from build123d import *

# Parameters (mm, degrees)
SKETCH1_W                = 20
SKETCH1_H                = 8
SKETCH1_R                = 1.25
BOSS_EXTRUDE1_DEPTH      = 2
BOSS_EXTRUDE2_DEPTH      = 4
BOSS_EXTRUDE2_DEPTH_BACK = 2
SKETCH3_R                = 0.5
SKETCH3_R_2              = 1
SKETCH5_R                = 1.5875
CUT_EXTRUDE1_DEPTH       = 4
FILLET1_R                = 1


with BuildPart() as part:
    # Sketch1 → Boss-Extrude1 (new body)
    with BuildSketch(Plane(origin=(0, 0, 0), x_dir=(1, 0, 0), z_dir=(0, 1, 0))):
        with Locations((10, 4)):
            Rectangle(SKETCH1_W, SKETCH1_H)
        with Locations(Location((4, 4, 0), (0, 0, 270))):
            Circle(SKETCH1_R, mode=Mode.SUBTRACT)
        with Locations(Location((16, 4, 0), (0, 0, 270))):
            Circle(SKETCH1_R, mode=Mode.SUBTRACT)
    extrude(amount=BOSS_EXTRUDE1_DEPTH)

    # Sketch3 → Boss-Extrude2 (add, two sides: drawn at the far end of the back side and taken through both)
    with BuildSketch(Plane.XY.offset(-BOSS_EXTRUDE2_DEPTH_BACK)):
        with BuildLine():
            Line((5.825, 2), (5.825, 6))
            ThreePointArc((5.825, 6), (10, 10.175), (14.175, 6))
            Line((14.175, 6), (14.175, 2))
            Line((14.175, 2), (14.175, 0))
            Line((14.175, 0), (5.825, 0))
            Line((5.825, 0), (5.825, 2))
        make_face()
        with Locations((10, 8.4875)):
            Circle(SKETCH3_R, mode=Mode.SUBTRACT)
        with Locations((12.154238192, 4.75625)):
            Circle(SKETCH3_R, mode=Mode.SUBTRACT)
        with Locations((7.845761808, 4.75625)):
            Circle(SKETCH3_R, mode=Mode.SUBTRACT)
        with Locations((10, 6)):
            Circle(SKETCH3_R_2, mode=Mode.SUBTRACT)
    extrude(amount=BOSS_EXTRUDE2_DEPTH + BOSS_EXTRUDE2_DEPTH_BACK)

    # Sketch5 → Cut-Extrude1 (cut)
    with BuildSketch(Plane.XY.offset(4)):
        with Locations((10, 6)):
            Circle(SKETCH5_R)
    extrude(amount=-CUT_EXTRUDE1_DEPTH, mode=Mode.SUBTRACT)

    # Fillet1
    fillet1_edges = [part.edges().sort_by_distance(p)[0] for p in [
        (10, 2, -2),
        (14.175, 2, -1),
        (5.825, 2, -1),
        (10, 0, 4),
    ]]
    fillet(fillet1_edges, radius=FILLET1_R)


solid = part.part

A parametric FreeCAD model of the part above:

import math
import FreeCAD as App
import Part
import Sketcher
Q = App.Units.Quantity


def edges_at(feature, points):
    """Names of the edges that pass closest to the given points."""
    edges = feature.Shape.Edges
    near = lambda p: min(range(len(edges)), key=lambda i: edges[i].distToShape(Part.Vertex(*p))[0])
    return sorted({f"Edge{near(p) + 1}" for p in points})

doc = App.newDocument("Part")
body = doc.addObject("PartDesign::Body", "Body")

# Sketch on XZ plane
sketch1 = body.newObject("Sketcher::SketchObject", "Sketch")
sketch1.AttachmentSupport = (doc.getObject("XZ_Plane"), [""])
sketch1.MapMode = "FlatFace"
sketch1.addGeometry(Part.LineSegment(App.Vector(0, -8, 0), App.Vector(0, 0, 0)), False)
sketch1.addGeometry(Part.LineSegment(App.Vector(0, 0, 0), App.Vector(20, 0, 0)), False)
sketch1.addGeometry(Part.LineSegment(App.Vector(20, 0, 0), App.Vector(20, -8, 0)), False)
sketch1.addGeometry(Part.LineSegment(App.Vector(20, -8, 0), App.Vector(0, -8, 0)), False)
sketch1.addGeometry(Part.Circle(App.Vector(4, -4, 0), App.Vector(0, 0, 1), 1.25), False)
sketch1.addGeometry(Part.Circle(App.Vector(16, -4, 0), App.Vector(0, 0, 1), 1.25), False)
sketch1.addConstraint(Sketcher.Constraint("Coincident", 0, 2, 1, 1))
sketch1.addConstraint(Sketcher.Constraint("Coincident", 1, 2, 2, 1))
sketch1.addConstraint(Sketcher.Constraint("Coincident", 2, 2, 3, 1))
sketch1.addConstraint(Sketcher.Constraint("Coincident", 3, 2, 0, 1))
sketch1.addConstraint(Sketcher.Constraint("Vertical", 0))
sketch1.addConstraint(Sketcher.Constraint("Horizontal", 1))
sketch1.addConstraint(Sketcher.Constraint("Vertical", 2))
sketch1.addConstraint(Sketcher.Constraint("Horizontal", 3))
sketch1.addConstraint(Sketcher.Constraint("Coincident", 0, 2, -1, 1))
sketch1.addConstraint(Sketcher.Constraint("Equal", 4, 5))
sketch1.addConstraint(Sketcher.Constraint("Horizontal", 4, 3, 5, 3))
sketch1.addConstraint(Sketcher.Constraint("Diameter", 4, Q("2.5 mm")))
sketch1.addConstraint(Sketcher.Constraint("DistanceX", 1, 1, 1, 2, Q("20 mm")))
sketch1.addConstraint(Sketcher.Constraint("DistanceY", 0, 1, 0, 2, Q("8 mm")))
sketch1.addConstraint(Sketcher.Constraint("DistanceX", -1, 1, 4, 3, Q("4 mm")))
sketch1.addConstraint(Sketcher.Constraint("DistanceY", 4, 3, -1, 1, Q("4 mm")))
sketch1.addConstraint(Sketcher.Constraint("DistanceX", -1, 1, 5, 3, Q("16 mm")))
pad1 = body.newObject("PartDesign::Pad", "Pad")
pad1.Profile = sketch1
pad1.Length = 2
pad1.Reversed = True

# Sketch on XY plane
sketch2 = body.newObject("Sketcher::SketchObject", "Sketch001")
sketch2.AttachmentSupport = (doc.getObject("XY_Plane"), [""])
sketch2.MapMode = "FlatFace"
sketch2.addGeometry(Part.ArcOfCircle(Part.Circle(App.Vector(10, 6, 0), App.Vector(0, 0, 1), 4.175), math.radians(0), math.radians(180)), False)
sketch2.addGeometry(Part.LineSegment(App.Vector(5.825, 6, 0), App.Vector(5.825, 0, 0)), False)
sketch2.addGeometry(Part.LineSegment(App.Vector(5.825, 0, 0), App.Vector(14.175, 0, 0)), False)
sketch2.addGeometry(Part.LineSegment(App.Vector(14.175, 0, 0), App.Vector(14.175, 6, 0)), False)
sketch2.addGeometry(Part.Circle(App.Vector(12.154238, 4.75625, 0), App.Vector(0, 0, 1), 0.5), False)
sketch2.addGeometry(Part.Circle(App.Vector(7.845762, 4.75625, 0), App.Vector(0, 0, 1), 0.5), False)
sketch2.addGeometry(Part.Circle(App.Vector(10, 6, 0), App.Vector(0, 0, 1), 1), False)
sketch2.addGeometry(Part.Circle(App.Vector(10, 8.4875, 0), App.Vector(0, 0, 1), 0.5), False)
sketch2.addConstraint(Sketcher.Constraint("Tangent", 0, 2, 1, 1))
sketch2.addConstraint(Sketcher.Constraint("Coincident", 1, 2, 2, 1))
sketch2.addConstraint(Sketcher.Constraint("Coincident", 2, 2, 3, 1))
sketch2.addConstraint(Sketcher.Constraint("Tangent", 3, 2, 0, 1))
sketch2.addConstraint(Sketcher.Constraint("Vertical", 1))
sketch2.addConstraint(Sketcher.Constraint("Horizontal", 2))
sketch2.addConstraint(Sketcher.Constraint("Vertical", 3))
sketch2.addConstraint(Sketcher.Constraint("Coincident", 6, 3, 0, 3))
sketch2.addConstraint(Sketcher.Constraint("Equal", 4, 5))
sketch2.addConstraint(Sketcher.Constraint("Equal", 5, 7))
sketch2.addConstraint(Sketcher.Constraint("PointOnObject", 1, 2, -1))
sketch2.addConstraint(Sketcher.Constraint("Horizontal", 4, 3, 5, 3))
sketch2.addConstraint(Sketcher.Constraint("Vertical", 6, 3, 7, 3))
sketch2.addConstraint(Sketcher.Constraint("Diameter", 4, Q("1 mm")))
sketch2.addConstraint(Sketcher.Constraint("Diameter", 6, Q("2 mm")))
sketch2.addConstraint(Sketcher.Constraint("DistanceY", 1, 2, 1, 1, Q("6 mm")))
sketch2.addConstraint(Sketcher.Constraint("DistanceX", -1, 1, 0, 3, Q("10 mm")))
sketch2.addConstraint(Sketcher.Constraint("Radius", 0, Q("4.175 mm")))
sketch2.addConstraint(Sketcher.Constraint("DistanceY", -1, 1, 7, 3, Q("8.4875 mm")))
sketch2.addConstraint(Sketcher.Constraint("DistanceX", -1, 1, 4, 3, Q("12.154238 mm")))
sketch2.addConstraint(Sketcher.Constraint("DistanceY", -1, 1, 4, 3, Q("4.75625 mm")))
sketch2.addConstraint(Sketcher.Constraint("DistanceX", -1, 1, 5, 3, Q("7.845762 mm")))
pad2 = body.newObject("PartDesign::Pad", "Pad001")
pad2.Profile = sketch2
pad2.Type = "TwoLengths"
pad2.Length = 4
pad2.Length2 = 2

# Sketch on XY plane
sketch3 = body.newObject("Sketcher::SketchObject", "Sketch002")
sketch3.AttachmentSupport = (doc.getObject("XY_Plane"), [""])
sketch3.MapMode = "FlatFace"
sketch3.AttachmentOffset = App.Placement(App.Vector(0, 0, 4), App.Rotation())
sketch3.addGeometry(Part.Circle(App.Vector(10, 6, 0), App.Vector(0, 0, 1), 1.5875), False)
sketch3.addConstraint(Sketcher.Constraint("Diameter", 0, Q("3.175 mm")))
sketch3.addConstraint(Sketcher.Constraint("DistanceX", -1, 1, 0, 3, Q("10 mm")))
sketch3.addConstraint(Sketcher.Constraint("DistanceY", -1, 1, 0, 3, Q("6 mm")))
pocket1 = body.newObject("PartDesign::Pocket", "Pocket")
pocket1.Profile = sketch3
pocket1.Length = 4
doc.recompute()

fillet = body.newObject("PartDesign::Fillet", "Fillet")
fillet.Base = (pocket1, edges_at(pocket1, [
    (10, 2, -2),
    (14.175, 2, -1),
    (5.825, 2, -1),
    (10, 0, 4),
]))
fillet.Radius = 1

doc.recompute()
